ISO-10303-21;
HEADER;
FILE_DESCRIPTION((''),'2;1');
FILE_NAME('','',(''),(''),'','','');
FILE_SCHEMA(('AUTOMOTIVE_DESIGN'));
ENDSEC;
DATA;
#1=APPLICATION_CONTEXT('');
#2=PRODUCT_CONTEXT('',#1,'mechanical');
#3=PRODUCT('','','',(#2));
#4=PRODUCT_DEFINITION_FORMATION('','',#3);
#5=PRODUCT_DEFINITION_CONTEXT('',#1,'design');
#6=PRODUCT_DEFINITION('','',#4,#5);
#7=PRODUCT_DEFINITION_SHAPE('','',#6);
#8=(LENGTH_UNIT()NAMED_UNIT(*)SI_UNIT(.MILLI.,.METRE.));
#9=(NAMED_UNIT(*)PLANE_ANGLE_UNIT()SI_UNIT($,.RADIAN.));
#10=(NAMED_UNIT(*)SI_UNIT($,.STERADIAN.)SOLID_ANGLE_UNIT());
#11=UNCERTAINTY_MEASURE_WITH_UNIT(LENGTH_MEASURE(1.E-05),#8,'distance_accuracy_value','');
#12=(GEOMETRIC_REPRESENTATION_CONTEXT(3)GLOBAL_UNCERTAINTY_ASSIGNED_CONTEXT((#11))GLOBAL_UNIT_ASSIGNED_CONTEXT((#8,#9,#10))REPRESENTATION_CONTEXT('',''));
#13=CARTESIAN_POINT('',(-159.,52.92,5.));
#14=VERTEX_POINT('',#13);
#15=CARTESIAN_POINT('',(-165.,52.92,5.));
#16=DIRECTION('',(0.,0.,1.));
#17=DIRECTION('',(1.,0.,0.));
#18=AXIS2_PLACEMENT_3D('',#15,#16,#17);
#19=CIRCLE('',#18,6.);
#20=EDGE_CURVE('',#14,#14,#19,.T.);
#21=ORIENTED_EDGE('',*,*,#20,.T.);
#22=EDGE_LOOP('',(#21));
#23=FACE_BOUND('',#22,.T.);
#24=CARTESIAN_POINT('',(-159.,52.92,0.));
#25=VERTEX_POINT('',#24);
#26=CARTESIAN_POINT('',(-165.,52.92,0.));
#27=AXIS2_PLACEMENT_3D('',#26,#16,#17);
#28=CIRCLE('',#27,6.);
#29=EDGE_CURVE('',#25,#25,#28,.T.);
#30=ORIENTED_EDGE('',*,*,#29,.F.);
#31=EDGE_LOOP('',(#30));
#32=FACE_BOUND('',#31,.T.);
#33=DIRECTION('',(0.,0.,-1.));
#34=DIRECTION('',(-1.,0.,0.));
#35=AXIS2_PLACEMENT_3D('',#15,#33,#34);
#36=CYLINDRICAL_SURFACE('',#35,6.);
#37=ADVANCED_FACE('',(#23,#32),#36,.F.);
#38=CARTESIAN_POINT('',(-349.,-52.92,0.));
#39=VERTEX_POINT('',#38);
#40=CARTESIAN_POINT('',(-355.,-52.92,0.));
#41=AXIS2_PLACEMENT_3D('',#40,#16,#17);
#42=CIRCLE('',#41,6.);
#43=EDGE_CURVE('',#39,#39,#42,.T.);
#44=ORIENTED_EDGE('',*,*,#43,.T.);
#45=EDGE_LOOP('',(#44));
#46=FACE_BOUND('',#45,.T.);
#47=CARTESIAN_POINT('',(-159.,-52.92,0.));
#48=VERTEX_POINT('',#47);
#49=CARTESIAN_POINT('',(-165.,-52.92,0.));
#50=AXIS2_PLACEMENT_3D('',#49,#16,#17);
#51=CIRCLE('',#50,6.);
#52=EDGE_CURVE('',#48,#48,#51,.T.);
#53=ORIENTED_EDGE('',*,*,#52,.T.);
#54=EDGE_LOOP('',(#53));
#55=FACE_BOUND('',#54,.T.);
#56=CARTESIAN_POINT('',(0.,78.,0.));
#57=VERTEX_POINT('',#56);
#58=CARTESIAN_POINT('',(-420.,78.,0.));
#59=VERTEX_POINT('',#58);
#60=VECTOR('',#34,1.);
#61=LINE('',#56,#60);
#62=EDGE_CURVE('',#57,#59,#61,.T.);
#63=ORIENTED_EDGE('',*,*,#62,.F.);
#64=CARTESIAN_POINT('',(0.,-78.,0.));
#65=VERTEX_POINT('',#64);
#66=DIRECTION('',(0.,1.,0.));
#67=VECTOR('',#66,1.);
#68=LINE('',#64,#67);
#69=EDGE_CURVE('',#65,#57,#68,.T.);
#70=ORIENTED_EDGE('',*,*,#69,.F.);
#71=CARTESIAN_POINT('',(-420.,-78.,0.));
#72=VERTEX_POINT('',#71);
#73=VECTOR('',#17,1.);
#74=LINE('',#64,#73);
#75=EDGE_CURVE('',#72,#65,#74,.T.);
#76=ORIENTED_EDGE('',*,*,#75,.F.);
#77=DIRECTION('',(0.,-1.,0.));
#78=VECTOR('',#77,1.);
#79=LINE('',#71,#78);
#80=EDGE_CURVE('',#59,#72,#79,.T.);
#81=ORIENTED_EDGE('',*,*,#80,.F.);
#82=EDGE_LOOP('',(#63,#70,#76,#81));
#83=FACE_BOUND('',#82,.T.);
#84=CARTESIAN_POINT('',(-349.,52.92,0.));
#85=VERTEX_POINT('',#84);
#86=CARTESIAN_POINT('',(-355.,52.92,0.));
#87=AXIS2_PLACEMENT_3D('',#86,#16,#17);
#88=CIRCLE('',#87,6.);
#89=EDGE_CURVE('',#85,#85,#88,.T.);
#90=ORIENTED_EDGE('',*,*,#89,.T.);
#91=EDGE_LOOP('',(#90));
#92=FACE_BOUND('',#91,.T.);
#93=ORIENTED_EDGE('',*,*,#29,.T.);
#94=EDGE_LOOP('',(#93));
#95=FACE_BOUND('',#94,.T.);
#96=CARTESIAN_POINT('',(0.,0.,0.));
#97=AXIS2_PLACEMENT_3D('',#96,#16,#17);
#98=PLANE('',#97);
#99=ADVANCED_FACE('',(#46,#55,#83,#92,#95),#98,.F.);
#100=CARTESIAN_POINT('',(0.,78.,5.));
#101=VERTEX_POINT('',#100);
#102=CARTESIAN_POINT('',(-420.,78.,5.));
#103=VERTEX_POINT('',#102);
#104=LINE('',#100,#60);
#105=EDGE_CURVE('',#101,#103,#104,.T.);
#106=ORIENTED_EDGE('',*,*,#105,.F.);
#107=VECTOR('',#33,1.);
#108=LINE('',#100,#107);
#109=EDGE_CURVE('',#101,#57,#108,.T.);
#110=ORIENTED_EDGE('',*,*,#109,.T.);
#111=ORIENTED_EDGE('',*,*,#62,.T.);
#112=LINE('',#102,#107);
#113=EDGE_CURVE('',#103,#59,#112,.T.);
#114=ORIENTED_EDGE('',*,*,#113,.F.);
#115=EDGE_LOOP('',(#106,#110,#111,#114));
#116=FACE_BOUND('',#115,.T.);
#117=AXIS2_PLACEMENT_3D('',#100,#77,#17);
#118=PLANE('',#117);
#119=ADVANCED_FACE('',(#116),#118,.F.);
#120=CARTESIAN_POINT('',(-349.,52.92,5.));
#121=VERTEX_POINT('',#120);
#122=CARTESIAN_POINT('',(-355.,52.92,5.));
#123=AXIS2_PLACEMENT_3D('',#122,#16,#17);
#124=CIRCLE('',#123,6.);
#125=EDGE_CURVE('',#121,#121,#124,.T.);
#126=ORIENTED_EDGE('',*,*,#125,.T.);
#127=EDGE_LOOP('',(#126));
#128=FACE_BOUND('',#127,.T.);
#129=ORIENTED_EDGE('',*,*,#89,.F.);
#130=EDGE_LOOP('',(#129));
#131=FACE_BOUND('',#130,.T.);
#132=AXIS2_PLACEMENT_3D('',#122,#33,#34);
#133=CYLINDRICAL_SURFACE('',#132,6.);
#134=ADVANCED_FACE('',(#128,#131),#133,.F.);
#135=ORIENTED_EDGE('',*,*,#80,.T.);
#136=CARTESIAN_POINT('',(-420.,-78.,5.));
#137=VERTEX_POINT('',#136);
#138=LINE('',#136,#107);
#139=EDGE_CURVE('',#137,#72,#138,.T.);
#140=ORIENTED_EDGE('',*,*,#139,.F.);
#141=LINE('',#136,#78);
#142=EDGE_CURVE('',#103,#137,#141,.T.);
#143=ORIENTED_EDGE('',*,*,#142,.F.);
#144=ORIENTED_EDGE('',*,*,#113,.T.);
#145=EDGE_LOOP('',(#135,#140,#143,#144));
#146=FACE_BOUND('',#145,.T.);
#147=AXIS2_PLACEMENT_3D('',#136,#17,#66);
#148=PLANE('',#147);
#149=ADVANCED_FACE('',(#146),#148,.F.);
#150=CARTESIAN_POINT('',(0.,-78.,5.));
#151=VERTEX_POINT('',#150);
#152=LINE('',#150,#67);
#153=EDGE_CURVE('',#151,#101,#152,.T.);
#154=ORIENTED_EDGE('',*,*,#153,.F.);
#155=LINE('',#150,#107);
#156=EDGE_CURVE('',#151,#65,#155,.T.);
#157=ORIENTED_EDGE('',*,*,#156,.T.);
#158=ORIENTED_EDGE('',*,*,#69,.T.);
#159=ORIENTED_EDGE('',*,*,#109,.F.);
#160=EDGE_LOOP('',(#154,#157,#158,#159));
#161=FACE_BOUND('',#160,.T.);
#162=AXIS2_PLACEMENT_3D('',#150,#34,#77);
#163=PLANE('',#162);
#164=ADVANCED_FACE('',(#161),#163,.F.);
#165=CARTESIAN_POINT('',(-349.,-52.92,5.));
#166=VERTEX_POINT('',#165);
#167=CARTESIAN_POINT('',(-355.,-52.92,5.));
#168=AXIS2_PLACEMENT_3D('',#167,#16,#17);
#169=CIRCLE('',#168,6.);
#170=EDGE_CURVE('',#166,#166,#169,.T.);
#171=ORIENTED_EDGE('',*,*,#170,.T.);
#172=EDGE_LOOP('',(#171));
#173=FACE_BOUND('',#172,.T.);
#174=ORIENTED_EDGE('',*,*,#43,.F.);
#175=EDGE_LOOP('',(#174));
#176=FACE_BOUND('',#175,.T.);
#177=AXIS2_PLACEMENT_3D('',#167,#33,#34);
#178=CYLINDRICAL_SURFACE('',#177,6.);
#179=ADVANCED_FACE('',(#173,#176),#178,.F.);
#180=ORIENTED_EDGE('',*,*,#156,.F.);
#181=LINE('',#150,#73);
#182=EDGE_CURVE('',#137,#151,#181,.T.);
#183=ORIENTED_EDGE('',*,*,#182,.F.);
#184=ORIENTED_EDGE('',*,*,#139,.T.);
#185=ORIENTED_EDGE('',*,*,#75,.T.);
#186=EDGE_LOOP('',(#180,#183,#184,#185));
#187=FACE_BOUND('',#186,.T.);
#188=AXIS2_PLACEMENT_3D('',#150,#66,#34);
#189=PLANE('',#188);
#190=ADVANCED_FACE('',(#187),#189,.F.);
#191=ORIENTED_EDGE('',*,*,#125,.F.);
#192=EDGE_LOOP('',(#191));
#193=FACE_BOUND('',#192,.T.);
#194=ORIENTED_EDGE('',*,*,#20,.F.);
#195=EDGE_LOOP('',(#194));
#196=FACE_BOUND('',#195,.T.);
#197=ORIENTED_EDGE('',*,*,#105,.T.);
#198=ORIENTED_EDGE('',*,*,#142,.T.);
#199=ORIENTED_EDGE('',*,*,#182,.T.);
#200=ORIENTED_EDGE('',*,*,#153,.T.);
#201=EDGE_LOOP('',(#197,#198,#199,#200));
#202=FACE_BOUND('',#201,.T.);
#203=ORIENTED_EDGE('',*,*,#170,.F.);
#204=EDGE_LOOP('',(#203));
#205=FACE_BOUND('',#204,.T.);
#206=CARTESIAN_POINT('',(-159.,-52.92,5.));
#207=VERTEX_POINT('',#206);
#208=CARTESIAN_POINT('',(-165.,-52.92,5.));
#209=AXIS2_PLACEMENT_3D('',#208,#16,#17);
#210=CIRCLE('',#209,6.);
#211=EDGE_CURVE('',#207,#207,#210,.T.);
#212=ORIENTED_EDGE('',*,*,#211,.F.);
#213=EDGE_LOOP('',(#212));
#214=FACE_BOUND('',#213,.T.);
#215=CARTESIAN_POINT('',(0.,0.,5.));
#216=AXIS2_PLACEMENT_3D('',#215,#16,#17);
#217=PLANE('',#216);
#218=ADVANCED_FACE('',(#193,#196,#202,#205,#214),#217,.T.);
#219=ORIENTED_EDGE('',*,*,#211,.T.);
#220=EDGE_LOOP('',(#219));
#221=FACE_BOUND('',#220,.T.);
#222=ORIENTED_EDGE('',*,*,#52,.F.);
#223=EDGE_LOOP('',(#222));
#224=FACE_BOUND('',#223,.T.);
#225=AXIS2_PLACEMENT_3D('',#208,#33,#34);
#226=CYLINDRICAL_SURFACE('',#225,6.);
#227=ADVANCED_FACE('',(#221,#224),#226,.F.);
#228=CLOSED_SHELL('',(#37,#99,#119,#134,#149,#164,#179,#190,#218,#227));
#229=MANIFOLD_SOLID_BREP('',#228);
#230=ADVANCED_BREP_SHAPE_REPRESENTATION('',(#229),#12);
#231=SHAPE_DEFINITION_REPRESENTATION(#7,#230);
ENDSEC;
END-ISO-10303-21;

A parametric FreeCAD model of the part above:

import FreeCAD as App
import Part
import Sketcher
from FreeCAD import Vector


def add_polygon(sketch, points):
    """Adds a closed chain of lines whose ends are joined by coincident constraints."""
    first, n = sketch.GeometryCount, len(points)
    for a, b in zip(points, points[1:] + points[:1]):
        sketch.addGeometry(Part.LineSegment(App.Vector(*a, 0), App.Vector(*b, 0)), False)
    for i in range(n):
        sketch.addConstraint(Sketcher.Constraint("Coincident", first + i, 2, first + (i + 1) % n, 1))

doc = App.newDocument("Part")
params = doc.addObject("Spreadsheet::Sheet", "Params")
for row, (alias, value) in enumerate([
    ("sketch1_diameter", "12 mm"),
    ("sketch1_width", "420 mm"),
    ("sketch1_height", "156 mm"),
    ("pad1_length", "5 mm"),
], start=1):
    params.set(f"A{row}", alias)
    params.set(f"B{row}", "=" + value)
    params.setAlias(f"B{row}", alias)

body = doc.addObject("PartDesign::Body", "Body")

# Sketch on XY plane
sketch1 = body.newObject("Sketcher::SketchObject", "Sketch")
sketch1.AttachmentSupport = (doc.getObject("XY_Plane"), [""])
sketch1.MapMode = "FlatFace"
add_polygon(sketch1, [(-420, 78), (-420, -78), (0, -78), (0, 78)])  # lines 0-3
sketch1.addGeometry(Part.Circle(Vector(-355, -52.92, 0), Vector(0, 0, 1), 6), False)  # 4
sketch1.addGeometry(Part.Circle(Vector(-165, -52.92, 0), Vector(0, 0, 1), 6), False)  # 5
sketch1.addGeometry(Part.Circle(Vector(-355, 52.92, 0), Vector(0, 0, 1), 6), False)  # 6
sketch1.addGeometry(Part.Circle(Vector(-165, 52.92, 0), Vector(0, 0, 1), 6), False)  # 7
sketch1.addConstraint([
    Sketcher.Constraint("Vertical", 0),
    Sketcher.Constraint("Horizontal", 1),
    Sketcher.Constraint("Vertical", 2),
    Sketcher.Constraint("Horizontal", 3),
    Sketcher.Constraint("Equal", 4, 5),
    Sketcher.Constraint("Equal", 5, 6),
    Sketcher.Constraint("Equal", 6, 7),
    Sketcher.Constraint("Symmetric", 1, 2, 2, 2, -1, 1),
    Sketcher.Constraint("Symmetric", 4, 3, 6, 3, -1),
    Sketcher.Constraint("Symmetric", 5, 3, 7, 3, -1),
    Sketcher.Constraint("Horizontal", 4, 3, 5, 3),
    Sketcher.Constraint("Diameter", 4, 12.0),
    Sketcher.Constraint("DistanceX", 1, 1, 1, 2, 420.0),
    Sketcher.Constraint("DistanceY", 0, 2, 0, 1, 156.0),
    Sketcher.Constraint("DistanceX", 4, 3, -1, 1, 355.0),
    Sketcher.Constraint("DistanceX", 5, 3, -1, 1, 165.0),
    Sketcher.Constraint("DistanceY", 4, 3, -1, 1, 52.92),
])
sketch1.setExpression("Constraints[15]", "Params.sketch1_diameter")
sketch1.setExpression("Constraints[16]", "Params.sketch1_width")
sketch1.setExpression("Constraints[17]", "Params.sketch1_height")
pad1 = body.newObject("PartDesign::Pad", "Pad")
pad1.Profile = sketch1
pad1.setExpression("Length", "Params.pad1_length")

doc.recompute()
